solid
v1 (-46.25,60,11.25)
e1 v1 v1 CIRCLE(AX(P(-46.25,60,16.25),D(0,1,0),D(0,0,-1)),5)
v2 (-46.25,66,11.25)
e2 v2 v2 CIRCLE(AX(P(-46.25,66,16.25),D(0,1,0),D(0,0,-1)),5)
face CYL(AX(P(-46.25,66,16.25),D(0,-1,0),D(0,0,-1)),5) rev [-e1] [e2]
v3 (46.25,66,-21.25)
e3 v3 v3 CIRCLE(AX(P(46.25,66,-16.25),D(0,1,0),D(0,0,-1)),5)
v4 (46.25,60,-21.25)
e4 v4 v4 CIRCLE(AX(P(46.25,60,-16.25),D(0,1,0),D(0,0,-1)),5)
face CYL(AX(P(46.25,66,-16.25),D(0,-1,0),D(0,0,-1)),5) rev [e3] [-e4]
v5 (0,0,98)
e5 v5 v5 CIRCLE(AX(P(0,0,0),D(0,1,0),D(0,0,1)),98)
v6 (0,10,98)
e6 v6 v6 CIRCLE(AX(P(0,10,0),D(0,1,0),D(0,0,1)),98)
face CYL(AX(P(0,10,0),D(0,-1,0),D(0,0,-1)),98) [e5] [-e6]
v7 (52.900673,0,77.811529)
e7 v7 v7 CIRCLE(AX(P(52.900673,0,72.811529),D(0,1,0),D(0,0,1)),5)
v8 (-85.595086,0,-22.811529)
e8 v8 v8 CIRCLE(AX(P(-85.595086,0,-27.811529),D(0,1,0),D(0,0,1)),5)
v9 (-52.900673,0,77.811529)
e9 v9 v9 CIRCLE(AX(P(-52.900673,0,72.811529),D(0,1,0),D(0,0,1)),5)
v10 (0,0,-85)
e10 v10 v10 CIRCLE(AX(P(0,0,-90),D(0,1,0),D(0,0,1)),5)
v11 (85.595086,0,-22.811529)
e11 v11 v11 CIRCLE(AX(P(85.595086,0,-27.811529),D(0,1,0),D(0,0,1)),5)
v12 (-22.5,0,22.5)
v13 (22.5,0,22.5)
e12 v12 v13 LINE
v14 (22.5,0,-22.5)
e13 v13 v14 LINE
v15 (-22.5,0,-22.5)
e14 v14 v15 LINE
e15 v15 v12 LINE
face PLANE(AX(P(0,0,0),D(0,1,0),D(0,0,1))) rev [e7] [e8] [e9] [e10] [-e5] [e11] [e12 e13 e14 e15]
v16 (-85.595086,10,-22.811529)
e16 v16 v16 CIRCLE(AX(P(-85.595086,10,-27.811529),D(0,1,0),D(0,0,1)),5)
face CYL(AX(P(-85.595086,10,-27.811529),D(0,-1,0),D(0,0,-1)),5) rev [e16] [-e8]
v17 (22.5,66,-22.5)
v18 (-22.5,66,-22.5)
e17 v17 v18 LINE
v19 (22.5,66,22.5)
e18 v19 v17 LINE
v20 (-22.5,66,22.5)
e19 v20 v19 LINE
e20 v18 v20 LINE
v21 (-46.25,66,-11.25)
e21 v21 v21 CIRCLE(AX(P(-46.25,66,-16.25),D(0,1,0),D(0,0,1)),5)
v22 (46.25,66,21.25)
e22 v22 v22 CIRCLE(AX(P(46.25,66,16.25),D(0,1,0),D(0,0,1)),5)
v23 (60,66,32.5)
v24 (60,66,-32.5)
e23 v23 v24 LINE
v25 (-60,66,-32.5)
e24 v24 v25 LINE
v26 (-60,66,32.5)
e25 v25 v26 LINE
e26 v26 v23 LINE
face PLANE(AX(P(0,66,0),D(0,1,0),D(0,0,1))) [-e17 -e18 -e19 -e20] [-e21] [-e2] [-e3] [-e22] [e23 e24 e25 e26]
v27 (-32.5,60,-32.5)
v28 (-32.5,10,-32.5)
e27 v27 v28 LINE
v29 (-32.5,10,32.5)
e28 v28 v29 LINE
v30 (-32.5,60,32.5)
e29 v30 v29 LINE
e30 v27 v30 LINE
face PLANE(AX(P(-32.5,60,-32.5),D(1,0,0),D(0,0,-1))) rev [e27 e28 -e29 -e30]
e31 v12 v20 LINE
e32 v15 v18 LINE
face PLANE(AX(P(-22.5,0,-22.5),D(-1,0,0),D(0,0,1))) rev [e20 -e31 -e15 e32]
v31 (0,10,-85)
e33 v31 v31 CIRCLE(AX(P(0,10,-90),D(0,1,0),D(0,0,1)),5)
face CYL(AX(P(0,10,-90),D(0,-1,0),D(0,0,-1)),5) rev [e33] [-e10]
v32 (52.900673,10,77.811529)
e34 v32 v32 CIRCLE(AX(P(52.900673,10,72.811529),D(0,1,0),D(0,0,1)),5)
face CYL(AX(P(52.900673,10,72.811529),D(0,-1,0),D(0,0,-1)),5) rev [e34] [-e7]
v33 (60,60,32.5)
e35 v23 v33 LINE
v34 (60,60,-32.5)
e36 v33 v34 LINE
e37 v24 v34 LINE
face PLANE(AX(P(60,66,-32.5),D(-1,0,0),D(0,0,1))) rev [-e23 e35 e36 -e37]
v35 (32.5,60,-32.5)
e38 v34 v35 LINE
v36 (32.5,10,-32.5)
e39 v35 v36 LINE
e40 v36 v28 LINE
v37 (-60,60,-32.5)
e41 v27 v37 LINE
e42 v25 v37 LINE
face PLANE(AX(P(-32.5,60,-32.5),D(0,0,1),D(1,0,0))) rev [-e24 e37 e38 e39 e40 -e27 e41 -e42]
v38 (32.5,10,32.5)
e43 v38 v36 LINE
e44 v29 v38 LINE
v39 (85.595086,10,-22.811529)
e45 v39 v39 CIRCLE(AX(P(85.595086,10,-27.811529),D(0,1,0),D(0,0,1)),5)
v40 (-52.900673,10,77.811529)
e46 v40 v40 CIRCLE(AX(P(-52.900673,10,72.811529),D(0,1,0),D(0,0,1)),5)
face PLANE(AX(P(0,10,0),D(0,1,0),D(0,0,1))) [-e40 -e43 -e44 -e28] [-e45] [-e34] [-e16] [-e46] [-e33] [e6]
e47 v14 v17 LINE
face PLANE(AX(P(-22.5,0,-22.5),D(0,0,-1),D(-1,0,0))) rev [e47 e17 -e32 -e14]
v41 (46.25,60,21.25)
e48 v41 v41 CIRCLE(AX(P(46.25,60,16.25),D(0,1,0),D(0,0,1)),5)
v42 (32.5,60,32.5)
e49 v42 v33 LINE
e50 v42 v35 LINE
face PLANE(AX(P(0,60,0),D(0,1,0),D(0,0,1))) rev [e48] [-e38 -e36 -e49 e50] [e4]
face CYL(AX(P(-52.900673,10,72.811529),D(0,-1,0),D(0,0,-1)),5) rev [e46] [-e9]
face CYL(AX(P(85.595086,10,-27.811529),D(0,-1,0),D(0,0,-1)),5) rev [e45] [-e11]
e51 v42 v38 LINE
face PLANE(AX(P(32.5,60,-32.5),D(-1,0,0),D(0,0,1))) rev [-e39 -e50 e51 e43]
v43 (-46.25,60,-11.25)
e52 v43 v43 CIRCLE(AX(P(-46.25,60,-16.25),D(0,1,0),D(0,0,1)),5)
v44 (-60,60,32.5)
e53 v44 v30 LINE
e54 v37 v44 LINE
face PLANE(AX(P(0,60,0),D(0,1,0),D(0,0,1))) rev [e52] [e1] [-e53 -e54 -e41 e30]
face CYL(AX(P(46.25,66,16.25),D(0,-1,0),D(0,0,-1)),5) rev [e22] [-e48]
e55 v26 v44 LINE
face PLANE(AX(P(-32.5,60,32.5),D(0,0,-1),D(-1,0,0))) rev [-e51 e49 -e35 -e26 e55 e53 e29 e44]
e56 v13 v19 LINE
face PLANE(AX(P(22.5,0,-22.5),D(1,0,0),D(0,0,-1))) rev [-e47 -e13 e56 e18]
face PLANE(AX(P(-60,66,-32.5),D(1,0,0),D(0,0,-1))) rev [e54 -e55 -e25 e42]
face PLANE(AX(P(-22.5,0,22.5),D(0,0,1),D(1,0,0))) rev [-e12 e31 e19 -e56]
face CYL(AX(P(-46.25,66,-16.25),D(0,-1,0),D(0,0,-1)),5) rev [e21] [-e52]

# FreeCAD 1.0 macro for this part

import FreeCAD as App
import Part
import Sketcher

V = App.Vector
Q = App.Units.Quantity

doc = App.newDocument("Part")
body = doc.addObject("PartDesign::Body", "Body")

sketch1 = doc.addObject("Sketcher::SketchObject", "Sketch")
body.addObject(sketch1)
sketch1.AttachmentSupport = (doc.XZ_Plane, [""])
sketch1.MapMode = "FlatFace"
sketch1.addGeometry([
    Part.Circle(V(0, 0, 0), V(0, 0, 1), 98),
    Part.Circle(V(-86, -28, 0), V(0, 0, 1), 5),
    Part.Circle(V(0, -90, 0), V(0, 0, 1), 5),
    Part.Circle(V(-53, 73, 0), V(0, 0, 1), 5),
    Part.Circle(V(86, -28, 0), V(0, 0, 1), 5),
    Part.Circle(V(53, 73, 0), V(0, 0, 1), 5),
], False)
sketch1.addConstraint([
    Sketcher.Constraint("Coincident", 0, 3, -1, 1),
    Sketcher.Constraint("Equal", 1, 2),
    Sketcher.Constraint("Equal", 2, 3),
    Sketcher.Constraint("Equal", 3, 4),
    Sketcher.Constraint("Equal", 4, 5),
    Sketcher.Constraint("Symmetric", 1, 3, 4, 3, -2),
    Sketcher.Constraint("Symmetric", 3, 3, 5, 3, -2),
    Sketcher.Constraint("PointOnObject", 2, 3, -2),
    Sketcher.Constraint("Diameter", 0, Q("196 mm")),
    Sketcher.Constraint("Diameter", 1, Q("10 mm")),
    Sketcher.Constraint("DistanceY", 2, 3, -1, 1, Q("90 mm")),
    Sketcher.Constraint("DistanceY", 1, 3, -1, 1, Q("27.811529 mm")),
    Sketcher.Constraint("DistanceY", -1, 1, 3, 3, Q("72.811529 mm")),
    Sketcher.Constraint("DistanceX", 3, 3, 4, 3, Q("138.495759 mm")),
    Sketcher.Constraint("DistanceX", 1, 3, -1, 1, Q("85.595086 mm")),
])
pad1 = doc.addObject("PartDesign::Pad", "Pad")
body.addObject(pad1)
pad1.Profile = sketch1
pad1.Length = 10
pad1.Reversed = True

sketch2 = doc.addObject("Sketcher::SketchObject", "Sketch001")
body.addObject(sketch2)
sketch2.AttachmentSupport = (doc.XZ_Plane, [""])
sketch2.MapMode = "FlatFace"
sketch2.AttachmentOffset = App.Placement(V(0, 0, -10), App.Rotation())
sketch2.addGeometry([
    Part.LineSegment(V(-32, -32, 0), V(-32, 32, 0)),
    Part.LineSegment(V(-32, 32, 0), V(32, 32, 0)),
    Part.LineSegment(V(32, 32, 0), V(32, -32, 0)),
    Part.LineSegment(V(32, -32, 0), V(-32, -32, 0)),
], False)
sketch2.addConstraint([
    Sketcher.Constraint("Coincident", 0, 2, 1, 1),
    Sketcher.Constraint("Coincident", 1, 2, 2, 1),
    Sketcher.Constraint("Coincident", 2, 2, 3, 1),
    Sketcher.Constraint("Coincident", 3, 2, 0, 1),
    Sketcher.Constraint("Vertical", 0),
    Sketcher.Constraint("Horizontal", 1),
    Sketcher.Constraint("Vertical", 2),
    Sketcher.Constraint("Horizontal", 3),
    Sketcher.Constraint("Symmetric", 0, 2, 2, 2, -1, 1),
    Sketcher.Constraint("Equal", 3, 0),
    Sketcher.Constraint("DistanceX", 1, 1, 1, 2, Q("65 mm")),
])
pad2 = doc.addObject("PartDesign::Pad", "Pad001")
body.addObject(pad2)
pad2.Profile = sketch2
pad2.Length = 50
pad2.Reversed = True

sketch3 = doc.addObject("Sketcher::SketchObject", "Sketch002")
body.addObject(sketch3)
sketch3.AttachmentSupport = (doc.XZ_Plane, [""])
sketch3.MapMode = "FlatFace"
sketch3.AttachmentOffset = App.Placement(V(0, 0, -60), App.Rotation())
sketch3.addGeometry([
    Part.LineSegment(V(-60, -32, 0), V(-60, 32, 0)),
    Part.LineSegment(V(-60, 32, 0), V(60, 32, 0)),
    Part.LineSegment(V(60, 32, 0), V(60, -32, 0)),
    Part.LineSegment(V(60, -32, 0), V(-60, -32, 0)),
    Part.Circle(V(-46, 16, 0), V(0, 0, 1), 5),
    Part.Circle(V(46, 16, 0), V(0, 0, 1), 5),
    Part.Circle(V(-46, -16, 0), V(0, 0, 1), 5),
    Part.Circle(V(46, -16, 0), V(0, 0, 1), 5),
], False)
sketch3.addConstraint([
    Sketcher.Constraint("Coincident", 0, 2, 1, 1),
    Sketcher.Constraint("Coincident", 1, 2, 2, 1),
    Sketcher.Constraint("Coincident", 2, 2, 3, 1),
    Sketcher.Constraint("Coincident", 3, 2, 0, 1),
    Sketcher.Constraint("Vertical", 0),
    Sketcher.Constraint("Horizontal", 1),
    Sketcher.Constraint("Vertical", 2),
    Sketcher.Constraint("Horizontal", 3),
    Sketcher.Constraint("Equal", 4, 5),
    Sketcher.Constraint("Equal", 5, 6),
    Sketcher.Constraint("Equal", 6, 7),
    Sketcher.Constraint("Symmetric", 5, 3, 6, 3, -1, 1),
    Sketcher.Constraint("Symmetric", 4, 3, 7, 3, -1, 1),
    Sketcher.Constraint("Symmetric", 0, 2, 2, 2, -1, 1),
    Sketcher.Constraint("Symmetric", 4, 3, 5, 3, -2),
    Sketcher.Constraint("Diameter", 4, Q("10 mm")),
    Sketcher.Constraint("DistanceX", 1, 1, 1, 2, Q("120 mm")),
    Sketcher.Constraint("DistanceY", 0, 1, 0, 2, Q("65 mm")),
    Sketcher.Constraint("DistanceX", 4, 3, 5, 3, Q("92.5 mm")),
    Sketcher.Constraint("DistanceY", 6, 3, 4, 3, Q("32.5 mm")),
])
pad3 = doc.addObject("PartDesign::Pad", "Pad002")
body.addObject(pad3)
pad3.Profile = sketch3
pad3.Length = 6
pad3.Reversed = True

sketch4 = doc.addObject("Sketcher::SketchObject", "Sketch003")
body.addObject(sketch4)
sketch4.AttachmentSupport = (doc.XZ_Plane, [""])
sketch4.MapMode = "FlatFace"
sketch4.AttachmentOffset = App.Placement(V(0, 0, -66), App.Rotation())
sketch4.addGeometry([
    Part.LineSegment(V(-22, -22, 0), V(-22, 22, 0)),
    Part.LineSegment(V(-22, 22, 0), V(22, 22, 0)),
    Part.LineSegment(V(22, 22, 0), V(22, -22, 0)),
    Part.LineSegment(V(22, -22, 0), V(-22, -22, 0)),
], False)
sketch4.addConstraint([
    Sketcher.Constraint("Coincident", 0, 2, 1, 1),
    Sketcher.Constraint("Coincident", 1, 2, 2, 1),
    Sketcher.Constraint("Coincident", 2, 2, 3, 1),
    Sketcher.Constraint("Coincident", 3, 2, 0, 1),
    Sketcher.Constraint("Vertical", 0),
    Sketcher.Constraint("Horizontal", 1),
    Sketcher.Constraint("Vertical", 2),
    Sketcher.Constraint("Horizontal", 3),
    Sketcher.Constraint("Symmetric", 0, 2, 2, 2, -1, 1),
    Sketcher.Constraint("Equal", 3, 0),
    Sketcher.Constraint("DistanceX", 1, 1, 1, 2, Q("45 mm")),
])
pocket1 = doc.addObject("PartDesign::Pocket", "Pocket")
body.addObject(pocket1)
pocket1.Profile = sketch4
pocket1.Type = "ThroughAll"
pocket1.Reversed = True

doc.recompute()
